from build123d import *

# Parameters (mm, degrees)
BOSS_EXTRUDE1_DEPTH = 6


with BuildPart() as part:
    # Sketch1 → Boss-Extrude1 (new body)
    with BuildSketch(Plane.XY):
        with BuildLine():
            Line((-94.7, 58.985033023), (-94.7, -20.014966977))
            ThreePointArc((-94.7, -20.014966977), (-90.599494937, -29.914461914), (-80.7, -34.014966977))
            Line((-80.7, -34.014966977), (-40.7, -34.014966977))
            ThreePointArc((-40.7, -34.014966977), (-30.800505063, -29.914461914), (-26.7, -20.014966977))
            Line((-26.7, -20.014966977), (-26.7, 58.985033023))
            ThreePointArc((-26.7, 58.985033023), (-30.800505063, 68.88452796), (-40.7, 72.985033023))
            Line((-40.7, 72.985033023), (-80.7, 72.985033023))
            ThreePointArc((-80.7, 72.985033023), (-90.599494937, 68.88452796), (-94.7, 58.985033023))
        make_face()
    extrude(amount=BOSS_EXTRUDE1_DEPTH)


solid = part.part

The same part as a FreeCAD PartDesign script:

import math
import FreeCAD as App
import Part
import Sketcher
from FreeCAD import Vector
Q = App.Units.Quantity

doc = App.newDocument("Part")
body = doc.addObject("PartDesign::Body", "Body")

sketch1 = body.newObject("Sketcher::SketchObject", "Sketch")
sketch1.AttachmentSupport = (doc.getObject("XY_Plane"), [""])
sketch1.MapMode = "FlatFace"
sketch1.addGeometry([
    Part.LineSegment(Vector(-94.7, 58.985033, 0), Vector(-94.7, -20.014967, 0)),
    Part.ArcOfCircle(Part.Circle(Vector(-80.7, -20.014967, 0), Vector(0, 0, 1), 14), math.radians(180), math.radians(270)),
    Part.LineSegment(Vector(-80.7, -34.014967, 0), Vector(-40.7, -34.014967, 0)),
    Part.ArcOfCircle(Part.Circle(Vector(-40.7, -20.014967, 0), Vector(0, 0, 1), 14), math.radians(-90), math.radians(0)),
    Part.LineSegment(Vector(-26.7, -20.014967, 0), Vector(-26.7, 58.985033, 0)),
    Part.ArcOfCircle(Part.Circle(Vector(-40.7, 58.985033, 0), Vector(0, 0, 1), 14), math.radians(0), math.radians(90)),
    Part.LineSegment(Vector(-40.7, 72.985033, 0), Vector(-80.7, 72.985033, 0)),
    Part.ArcOfCircle(Part.Circle(Vector(-80.7, 58.985033, 0), Vector(0, 0, 1), 14), math.radians(90), math.radians(180)),
], False)
sketch1.addConstraint([
    Sketcher.Constraint("Tangent", 0, 2, 1, 1),
    Sketcher.Constraint("Tangent", 1, 2, 2, 1),
    Sketcher.Constraint("Tangent", 2, 2, 3, 1),
    Sketcher.Constraint("Tangent", 3, 2, 4, 1),
    Sketcher.Constraint("Tangent", 4, 2, 5, 1),
    Sketcher.Constraint("Tangent", 5, 2, 6, 1),
    Sketcher.Constraint("Tangent", 6, 2, 7, 1),
    Sketcher.Constraint("Tangent", 7, 2, 0, 1),
    Sketcher.Constraint("Vertical", 0),
    Sketcher.Constraint("Horizontal", 2),
    Sketcher.Constraint("Vertical", 4),
    Sketcher.Constraint("Horizontal", 6),
    Sketcher.Constraint("Equal", 1, 3),
    Sketcher.Constraint("Equal", 3, 5),
    Sketcher.Constraint("Equal", 5, 7),
    Sketcher.Constraint("Radius", 1, Q("14 mm")),
    Sketcher.Constraint("DistanceX", 2, 1, 2, 2, Q("40 mm")),
    Sketcher.Constraint("DistanceY", 0, 2, 0, 1, Q("79 mm")),
    Sketcher.Constraint("DistanceX", 1, 3, -1, 1, Q("80.7 mm")),
    Sketcher.Constraint("DistanceY", 1, 3, -1, 1, Q("20.014967 mm")),
])
pad1 = body.newObject("PartDesign::Pad", "Pad")
pad1.Profile = sketch1
pad1.Length = 6

doc.recompute()
